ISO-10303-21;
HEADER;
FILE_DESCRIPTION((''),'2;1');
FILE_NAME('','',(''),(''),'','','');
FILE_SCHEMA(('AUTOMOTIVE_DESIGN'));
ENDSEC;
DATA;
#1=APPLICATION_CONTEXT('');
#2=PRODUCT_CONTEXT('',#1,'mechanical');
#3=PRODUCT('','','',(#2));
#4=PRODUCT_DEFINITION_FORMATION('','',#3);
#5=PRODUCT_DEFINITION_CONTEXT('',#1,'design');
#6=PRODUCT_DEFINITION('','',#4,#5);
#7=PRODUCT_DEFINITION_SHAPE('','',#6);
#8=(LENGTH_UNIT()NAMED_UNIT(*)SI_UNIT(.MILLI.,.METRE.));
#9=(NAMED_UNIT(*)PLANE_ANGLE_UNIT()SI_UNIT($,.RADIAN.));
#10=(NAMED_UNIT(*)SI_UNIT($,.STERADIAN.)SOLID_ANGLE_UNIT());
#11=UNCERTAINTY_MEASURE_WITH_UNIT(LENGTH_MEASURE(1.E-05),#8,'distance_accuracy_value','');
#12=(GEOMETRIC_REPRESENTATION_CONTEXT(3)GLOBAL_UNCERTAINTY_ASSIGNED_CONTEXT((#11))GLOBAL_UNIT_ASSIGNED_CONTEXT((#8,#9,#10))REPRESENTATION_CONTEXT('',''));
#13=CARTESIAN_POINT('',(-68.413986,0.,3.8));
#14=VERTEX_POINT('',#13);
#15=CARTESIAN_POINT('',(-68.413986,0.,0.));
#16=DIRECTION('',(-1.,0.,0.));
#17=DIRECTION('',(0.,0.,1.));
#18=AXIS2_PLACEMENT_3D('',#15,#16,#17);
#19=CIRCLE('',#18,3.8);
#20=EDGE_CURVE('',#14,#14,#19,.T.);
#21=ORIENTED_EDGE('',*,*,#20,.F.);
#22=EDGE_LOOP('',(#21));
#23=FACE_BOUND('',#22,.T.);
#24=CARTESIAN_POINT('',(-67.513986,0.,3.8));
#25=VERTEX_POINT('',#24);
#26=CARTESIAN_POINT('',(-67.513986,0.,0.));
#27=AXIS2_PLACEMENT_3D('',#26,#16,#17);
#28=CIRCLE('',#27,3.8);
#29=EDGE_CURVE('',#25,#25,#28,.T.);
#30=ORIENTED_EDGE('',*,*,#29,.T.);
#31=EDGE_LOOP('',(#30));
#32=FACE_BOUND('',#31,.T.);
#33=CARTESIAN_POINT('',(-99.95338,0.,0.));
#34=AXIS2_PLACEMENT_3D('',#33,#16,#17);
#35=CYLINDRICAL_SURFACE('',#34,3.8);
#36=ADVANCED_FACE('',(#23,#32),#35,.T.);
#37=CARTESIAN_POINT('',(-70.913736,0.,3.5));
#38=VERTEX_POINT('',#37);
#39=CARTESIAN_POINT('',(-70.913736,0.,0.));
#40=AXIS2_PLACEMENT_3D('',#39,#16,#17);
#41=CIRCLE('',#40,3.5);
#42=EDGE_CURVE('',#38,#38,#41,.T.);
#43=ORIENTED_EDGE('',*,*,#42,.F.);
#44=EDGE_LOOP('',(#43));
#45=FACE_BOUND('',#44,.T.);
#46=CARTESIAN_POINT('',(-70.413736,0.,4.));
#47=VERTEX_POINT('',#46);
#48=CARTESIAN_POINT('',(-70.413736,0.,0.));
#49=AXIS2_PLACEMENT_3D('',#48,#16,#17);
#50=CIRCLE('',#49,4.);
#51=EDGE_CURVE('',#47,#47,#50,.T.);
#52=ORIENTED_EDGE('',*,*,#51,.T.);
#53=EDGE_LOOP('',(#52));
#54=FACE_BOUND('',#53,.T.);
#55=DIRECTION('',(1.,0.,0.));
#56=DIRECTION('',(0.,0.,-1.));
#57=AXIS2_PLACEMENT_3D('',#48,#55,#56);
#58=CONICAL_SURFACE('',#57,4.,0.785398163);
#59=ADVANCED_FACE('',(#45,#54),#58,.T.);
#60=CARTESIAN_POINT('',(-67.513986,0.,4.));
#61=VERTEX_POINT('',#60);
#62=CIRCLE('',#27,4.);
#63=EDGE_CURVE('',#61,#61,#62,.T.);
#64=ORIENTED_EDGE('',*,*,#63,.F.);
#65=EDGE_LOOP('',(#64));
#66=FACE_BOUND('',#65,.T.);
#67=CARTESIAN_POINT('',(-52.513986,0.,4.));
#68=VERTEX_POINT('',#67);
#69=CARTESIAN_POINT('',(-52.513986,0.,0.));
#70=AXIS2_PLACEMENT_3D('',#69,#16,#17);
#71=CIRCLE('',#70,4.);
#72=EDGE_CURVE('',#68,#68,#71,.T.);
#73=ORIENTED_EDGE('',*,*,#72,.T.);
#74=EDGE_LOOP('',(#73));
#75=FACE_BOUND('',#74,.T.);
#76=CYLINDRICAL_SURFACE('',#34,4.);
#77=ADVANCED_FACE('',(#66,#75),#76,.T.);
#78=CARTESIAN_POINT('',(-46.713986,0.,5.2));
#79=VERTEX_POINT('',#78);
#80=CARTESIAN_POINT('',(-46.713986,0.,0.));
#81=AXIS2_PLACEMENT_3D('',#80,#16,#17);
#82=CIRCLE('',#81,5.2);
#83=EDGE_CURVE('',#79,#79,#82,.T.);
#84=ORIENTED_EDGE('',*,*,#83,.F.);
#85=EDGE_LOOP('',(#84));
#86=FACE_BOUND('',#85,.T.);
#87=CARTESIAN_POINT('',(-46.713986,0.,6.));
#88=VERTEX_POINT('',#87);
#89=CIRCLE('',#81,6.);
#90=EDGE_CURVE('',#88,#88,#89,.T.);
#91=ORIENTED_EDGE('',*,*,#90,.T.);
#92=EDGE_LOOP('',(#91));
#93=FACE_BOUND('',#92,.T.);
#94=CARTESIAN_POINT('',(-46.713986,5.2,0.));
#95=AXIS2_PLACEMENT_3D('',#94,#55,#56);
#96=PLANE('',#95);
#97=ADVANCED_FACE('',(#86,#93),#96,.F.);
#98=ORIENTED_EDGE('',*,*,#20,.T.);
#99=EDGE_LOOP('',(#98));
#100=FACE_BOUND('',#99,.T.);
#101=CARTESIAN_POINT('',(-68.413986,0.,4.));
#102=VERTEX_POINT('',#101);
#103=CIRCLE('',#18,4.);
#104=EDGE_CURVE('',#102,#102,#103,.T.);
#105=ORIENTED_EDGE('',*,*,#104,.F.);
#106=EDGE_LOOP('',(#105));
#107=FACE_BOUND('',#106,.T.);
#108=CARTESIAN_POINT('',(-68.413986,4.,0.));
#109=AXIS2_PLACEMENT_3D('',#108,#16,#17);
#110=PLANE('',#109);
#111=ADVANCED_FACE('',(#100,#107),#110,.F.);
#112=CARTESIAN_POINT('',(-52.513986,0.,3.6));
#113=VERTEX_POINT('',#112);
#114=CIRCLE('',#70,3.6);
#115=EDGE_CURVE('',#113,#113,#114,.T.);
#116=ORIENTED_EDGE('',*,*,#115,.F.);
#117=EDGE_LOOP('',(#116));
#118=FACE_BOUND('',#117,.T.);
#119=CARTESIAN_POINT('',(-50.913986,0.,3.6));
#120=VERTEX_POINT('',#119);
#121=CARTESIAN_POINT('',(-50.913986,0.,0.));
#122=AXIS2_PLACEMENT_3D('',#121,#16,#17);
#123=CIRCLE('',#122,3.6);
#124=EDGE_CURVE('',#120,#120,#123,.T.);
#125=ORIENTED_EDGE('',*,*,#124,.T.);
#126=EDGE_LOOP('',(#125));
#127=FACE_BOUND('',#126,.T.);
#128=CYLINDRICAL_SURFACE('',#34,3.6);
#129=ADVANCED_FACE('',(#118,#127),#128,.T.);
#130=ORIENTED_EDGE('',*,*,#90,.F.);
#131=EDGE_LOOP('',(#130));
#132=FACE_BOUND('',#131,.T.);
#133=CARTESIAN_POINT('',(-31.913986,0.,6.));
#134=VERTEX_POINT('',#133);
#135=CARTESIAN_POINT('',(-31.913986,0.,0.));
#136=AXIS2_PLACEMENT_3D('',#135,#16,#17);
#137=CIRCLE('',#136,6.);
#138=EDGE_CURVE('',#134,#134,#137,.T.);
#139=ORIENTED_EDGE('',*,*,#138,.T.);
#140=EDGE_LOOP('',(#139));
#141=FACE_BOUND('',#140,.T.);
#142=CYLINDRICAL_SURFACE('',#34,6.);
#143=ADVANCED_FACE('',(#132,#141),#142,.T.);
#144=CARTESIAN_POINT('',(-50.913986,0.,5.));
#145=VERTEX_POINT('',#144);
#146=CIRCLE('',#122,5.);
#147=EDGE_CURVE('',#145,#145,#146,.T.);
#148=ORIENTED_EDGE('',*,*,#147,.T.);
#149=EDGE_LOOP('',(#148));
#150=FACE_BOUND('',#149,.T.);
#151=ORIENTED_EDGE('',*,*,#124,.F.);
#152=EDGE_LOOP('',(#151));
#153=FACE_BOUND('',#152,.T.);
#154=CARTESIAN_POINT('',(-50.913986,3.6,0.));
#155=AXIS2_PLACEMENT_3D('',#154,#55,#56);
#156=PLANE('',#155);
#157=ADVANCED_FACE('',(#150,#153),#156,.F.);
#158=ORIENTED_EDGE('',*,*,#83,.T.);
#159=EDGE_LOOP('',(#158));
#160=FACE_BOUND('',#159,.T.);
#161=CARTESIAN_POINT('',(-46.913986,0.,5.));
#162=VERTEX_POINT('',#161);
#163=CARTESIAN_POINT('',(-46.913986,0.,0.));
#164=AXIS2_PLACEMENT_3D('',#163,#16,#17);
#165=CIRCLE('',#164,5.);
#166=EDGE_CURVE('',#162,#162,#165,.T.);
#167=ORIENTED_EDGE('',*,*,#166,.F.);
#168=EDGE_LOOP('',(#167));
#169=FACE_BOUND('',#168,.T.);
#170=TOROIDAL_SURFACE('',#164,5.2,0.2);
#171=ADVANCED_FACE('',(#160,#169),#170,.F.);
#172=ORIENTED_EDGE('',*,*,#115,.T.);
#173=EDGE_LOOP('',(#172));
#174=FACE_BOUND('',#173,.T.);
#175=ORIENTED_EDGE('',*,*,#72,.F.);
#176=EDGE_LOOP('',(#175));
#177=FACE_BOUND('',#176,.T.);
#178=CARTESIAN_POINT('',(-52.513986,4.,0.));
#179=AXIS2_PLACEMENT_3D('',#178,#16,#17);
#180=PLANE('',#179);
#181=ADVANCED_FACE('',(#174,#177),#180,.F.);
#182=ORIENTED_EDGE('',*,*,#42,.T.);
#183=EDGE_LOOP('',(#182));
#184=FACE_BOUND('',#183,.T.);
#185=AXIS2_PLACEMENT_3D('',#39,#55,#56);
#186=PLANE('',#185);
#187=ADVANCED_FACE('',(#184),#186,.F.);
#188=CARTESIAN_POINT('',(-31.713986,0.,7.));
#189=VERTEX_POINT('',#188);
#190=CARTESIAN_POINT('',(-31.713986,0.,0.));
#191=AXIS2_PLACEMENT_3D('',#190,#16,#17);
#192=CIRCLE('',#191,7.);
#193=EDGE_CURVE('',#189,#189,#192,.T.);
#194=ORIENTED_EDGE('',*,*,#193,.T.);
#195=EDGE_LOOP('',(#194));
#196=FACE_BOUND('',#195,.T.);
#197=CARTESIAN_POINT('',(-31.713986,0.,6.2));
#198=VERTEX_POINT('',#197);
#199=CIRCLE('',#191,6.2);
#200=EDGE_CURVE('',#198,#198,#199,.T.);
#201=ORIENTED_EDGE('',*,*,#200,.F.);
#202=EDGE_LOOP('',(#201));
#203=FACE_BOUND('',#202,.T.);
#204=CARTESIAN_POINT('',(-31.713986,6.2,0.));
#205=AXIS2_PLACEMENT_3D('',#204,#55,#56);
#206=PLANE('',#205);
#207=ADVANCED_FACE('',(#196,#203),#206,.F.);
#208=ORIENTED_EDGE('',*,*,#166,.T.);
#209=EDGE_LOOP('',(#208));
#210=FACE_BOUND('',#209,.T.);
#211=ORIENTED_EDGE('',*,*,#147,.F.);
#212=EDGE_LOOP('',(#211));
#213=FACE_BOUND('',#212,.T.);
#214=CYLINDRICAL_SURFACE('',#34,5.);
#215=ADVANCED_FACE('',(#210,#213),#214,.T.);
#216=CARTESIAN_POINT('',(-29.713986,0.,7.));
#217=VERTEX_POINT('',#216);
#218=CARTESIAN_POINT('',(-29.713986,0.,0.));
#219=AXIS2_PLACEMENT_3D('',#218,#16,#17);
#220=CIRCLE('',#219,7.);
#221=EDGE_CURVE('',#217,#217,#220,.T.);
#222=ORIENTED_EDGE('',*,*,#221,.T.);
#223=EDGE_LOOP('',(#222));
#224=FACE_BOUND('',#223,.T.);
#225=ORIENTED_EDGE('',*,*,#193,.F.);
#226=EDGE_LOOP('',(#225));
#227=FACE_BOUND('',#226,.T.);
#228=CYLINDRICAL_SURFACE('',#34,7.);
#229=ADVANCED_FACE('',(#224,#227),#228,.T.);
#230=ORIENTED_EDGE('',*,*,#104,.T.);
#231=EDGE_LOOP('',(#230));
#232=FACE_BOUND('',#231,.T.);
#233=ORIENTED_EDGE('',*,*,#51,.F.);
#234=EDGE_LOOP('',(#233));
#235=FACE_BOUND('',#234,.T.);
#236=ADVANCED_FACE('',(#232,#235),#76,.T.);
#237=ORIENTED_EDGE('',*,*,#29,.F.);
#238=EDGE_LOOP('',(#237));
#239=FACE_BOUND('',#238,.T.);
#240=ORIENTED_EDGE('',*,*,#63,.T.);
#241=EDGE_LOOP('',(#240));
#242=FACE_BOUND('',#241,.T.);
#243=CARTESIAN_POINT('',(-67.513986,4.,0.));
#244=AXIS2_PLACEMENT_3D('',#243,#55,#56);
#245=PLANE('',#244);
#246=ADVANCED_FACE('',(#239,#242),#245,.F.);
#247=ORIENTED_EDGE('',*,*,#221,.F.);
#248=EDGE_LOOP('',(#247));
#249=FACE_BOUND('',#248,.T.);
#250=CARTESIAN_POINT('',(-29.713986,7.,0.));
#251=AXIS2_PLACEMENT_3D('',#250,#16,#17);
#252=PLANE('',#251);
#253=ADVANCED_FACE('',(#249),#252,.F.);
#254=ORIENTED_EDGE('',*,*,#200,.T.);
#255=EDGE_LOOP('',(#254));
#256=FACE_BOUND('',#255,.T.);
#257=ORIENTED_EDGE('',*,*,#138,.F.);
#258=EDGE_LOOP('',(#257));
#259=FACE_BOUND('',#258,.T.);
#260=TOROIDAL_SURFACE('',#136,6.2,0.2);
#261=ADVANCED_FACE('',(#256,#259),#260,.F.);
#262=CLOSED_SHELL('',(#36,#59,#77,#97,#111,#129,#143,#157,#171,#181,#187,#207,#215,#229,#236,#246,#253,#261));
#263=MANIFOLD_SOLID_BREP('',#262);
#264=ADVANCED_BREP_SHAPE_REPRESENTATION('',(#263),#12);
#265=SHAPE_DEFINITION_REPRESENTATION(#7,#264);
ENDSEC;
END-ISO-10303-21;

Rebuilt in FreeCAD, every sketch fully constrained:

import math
import FreeCAD as App
import Part
import Sketcher
from FreeCAD import Vector
Q = App.Units.Quantity

doc = App.newDocument("Part")
params = doc.addObject("Spreadsheet::Sheet", "Params")
for row, (alias, value) in enumerate([
    ("sketch1_radius", "0.2 mm"),
    ("sketch1_width", "2 mm"),
    ("sketch1_width2", "4 mm"),
    ("sketch1_width3", "15 mm"),
    ("sketch1_height", "7 mm"),
    ("revolution_angle", "360 deg"),
], start=1):
    params.set(f"A{row}", alias)
    params.set(f"B{row}", "=" + value)
    params.setAlias(f"B{row}", alias)

body = doc.addObject("PartDesign::Body", "Body")

sketch1 = body.newObject("Sketcher::SketchObject", "Sketch")
sketch1.AttachmentSupport = (doc.getObject("XY_Plane"), [""])
sketch1.MapMode = "FlatFace"
sketch1.addGeometry(Part.LineSegment(Vector(-70.91, 3.5, 0), Vector(-70.91, 0, 0)), False)
sketch1.addGeometry(Part.LineSegment(Vector(-70.91, 0, 0), Vector(-29.71, 0, 0)), False)
sketch1.addGeometry(Part.LineSegment(Vector(-29.71, 0, 0), Vector(-29.71, 7, 0)), False)
sketch1.addGeometry(Part.LineSegment(Vector(-29.71, 7, 0), Vector(-31.71, 7, 0)), False)
sketch1.addGeometry(Part.LineSegment(Vector(-31.71, 7, 0), Vector(-31.71, 6.2, 0)), False)
sketch1.addGeometry(Part.ArcOfCircle(Part.Circle(Vector(-31.91, 6.2, 0), Vector(0, 0, 1), 0.2), math.radians(-90), math.radians(0)), False)
sketch1.addGeometry(Part.LineSegment(Vector(-31.91, 6, 0), Vector(-46.71, 6, 0)), False)
sketch1.addGeometry(Part.LineSegment(Vector(-46.71, 6, 0), Vector(-46.71, 5.2, 0)), False)
sketch1.addGeometry(Part.ArcOfCircle(Part.Circle(Vector(-46.91, 5.2, 0), Vector(0, 0, 1), 0.2), math.radians(-90), math.radians(0)), False)
sketch1.addGeometry(Part.LineSegment(Vector(-46.91, 5, 0), Vector(-50.91, 5, 0)), False)
sketch1.addGeometry(Part.LineSegment(Vector(-50.91, 5, 0), Vector(-50.91, 3.6, 0)), False)
sketch1.addGeometry(Part.LineSegment(Vector(-50.91, 3.6, 0), Vector(-52.51, 3.6, 0)), False)
sketch1.addGeometry(Part.LineSegment(Vector(-52.51, 3.6, 0), Vector(-52.51, 4, 0)), False)
sketch1.addGeometry(Part.LineSegment(Vector(-52.51, 4, 0), Vector(-67.51, 4, 0)), False)
sketch1.addGeometry(Part.LineSegment(Vector(-67.51, 4, 0), Vector(-67.51, 3.8, 0)), False)
sketch1.addGeometry(Part.LineSegment(Vector(-67.51, 3.8, 0), Vector(-68.41, 3.8, 0)), False)
sketch1.addGeometry(Part.LineSegment(Vector(-68.41, 3.8, 0), Vector(-68.41, 4, 0)), False)
sketch1.addGeometry(Part.LineSegment(Vector(-68.41, 4, 0), Vector(-70.41, 4, 0)), False)
sketch1.addGeometry(Part.LineSegment(Vector(-70.41, 4, 0), Vector(-70.91, 3.5, 0)), False)
sketch1.addConstraint(Sketcher.Constraint("Coincident", 0, 2, 1, 1))
sketch1.addConstraint(Sketcher.Constraint("Coincident", 1, 2, 2, 1))
sketch1.addConstraint(Sketcher.Constraint("Coincident", 2, 2, 3, 1))
sketch1.addConstraint(Sketcher.Constraint("Coincident", 3, 2, 4, 1))
sketch1.addConstraint(Sketcher.Constraint("Tangent", 4, 2, 5, 2))
sketch1.addConstraint(Sketcher.Constraint("Tangent", 5, 1, 6, 1))
sketch1.addConstraint(Sketcher.Constraint("Coincident", 6, 2, 7, 1))
sketch1.addConstraint(Sketcher.Constraint("Tangent", 7, 2, 8, 2))
sketch1.addConstraint(Sketcher.Constraint("Tangent", 8, 1, 9, 1))
sketch1.addConstraint(Sketcher.Constraint("Coincident", 9, 2, 10, 1))
sketch1.addConstraint(Sketcher.Constraint("Coincident", 10, 2, 11, 1))
sketch1.addConstraint(Sketcher.Constraint("Coincident", 11, 2, 12, 1))
sketch1.addConstraint(Sketcher.Constraint("Coincident", 12, 2, 13, 1))
sketch1.addConstraint(Sketcher.Constraint("Coincident", 13, 2, 14, 1))
sketch1.addConstraint(Sketcher.Constraint("Coincident", 14, 2, 15, 1))
sketch1.addConstraint(Sketcher.Constraint("Coincident", 15, 2, 16, 1))
sketch1.addConstraint(Sketcher.Constraint("Coincident", 16, 2, 17, 1))
sketch1.addConstraint(Sketcher.Constraint("Coincident", 17, 2, 18, 1))
sketch1.addConstraint(Sketcher.Constraint("Coincident", 18, 2, 0, 1))
sketch1.addConstraint(Sketcher.Constraint("Vertical", 0))
sketch1.addConstraint(Sketcher.Constraint("Horizontal", 1))
sketch1.addConstraint(Sketcher.Constraint("Vertical", 2))
sketch1.addConstraint(Sketcher.Constraint("Horizontal", 3))
sketch1.addConstraint(Sketcher.Constraint("Vertical", 4))
sketch1.addConstraint(Sketcher.Constraint("Horizontal", 6))
sketch1.addConstraint(Sketcher.Constraint("Vertical", 7))
sketch1.addConstraint(Sketcher.Constraint("Horizontal", 9))
sketch1.addConstraint(Sketcher.Constraint("Vertical", 10))
sketch1.addConstraint(Sketcher.Constraint("Horizontal", 11))
sketch1.addConstraint(Sketcher.Constraint("Vertical", 12))
sketch1.addConstraint(Sketcher.Constraint("Horizontal", 13))
sketch1.addConstraint(Sketcher.Constraint("Vertical", 14))
sketch1.addConstraint(Sketcher.Constraint("Horizontal", 15))
sketch1.addConstraint(Sketcher.Constraint("Vertical", 16))
sketch1.addConstraint(Sketcher.Constraint("Horizontal", 17))
sketch1.addConstraint(Sketcher.Constraint("Equal", 5, 8))
sketch1.addConstraint(Sketcher.Constraint("PointOnObject", 0, 2, -1))
sketch1.addConstraint(Sketcher.Constraint("Horizontal", 13, 2, 16, 2))
sketch1.addConstraint(Sketcher.Constraint("Equal", 4, 7))
sketch1.addConstraint(Sketcher.Constraint("Radius", 5, Q("0.2 mm")))
sketch1.addConstraint(Sketcher.Constraint("DistanceX", 3, 2, 3, 1, Q("2 mm")))
sketch1.addConstraint(Sketcher.Constraint("DistanceX", 9, 2, 9, 1, Q("4 mm")))
sketch1.addConstraint(Sketcher.Constraint("DistanceX", 13, 2, 13, 1, Q("15 mm")))
sketch1.addConstraint(Sketcher.Constraint("DistanceY", 2, 1, 2, 2, Q("7 mm")))
sketch1.addConstraint(Sketcher.Constraint("Angle", 18, Q("-135 deg")))
sketch1.addConstraint(Sketcher.Constraint("DistanceX", 6, 2, 6, 1, Q("14.8 mm")))
sketch1.addConstraint(Sketcher.Constraint("DistanceX", 11, 2, 11, 1, Q("1.6 mm")))
sketch1.addConstraint(Sketcher.Constraint("DistanceX", 15, 2, 15, 1, Q("0.9 mm")))
sketch1.addConstraint(Sketcher.Constraint("DistanceY", 0, 2, 0, 1, Q("3.5 mm")))
sketch1.addConstraint(Sketcher.Constraint("DistanceY", 4, 2, 4, 1, Q("0.8 mm")))
sketch1.addConstraint(Sketcher.Constraint("DistanceY", 10, 2, 10, 1, Q("1.4 mm")))
sketch1.addConstraint(Sketcher.Constraint("DistanceY", 12, 1, 12, 2, Q("0.4 mm")))
sketch1.addConstraint(Sketcher.Constraint("DistanceY", 14, 2, 14, 1, Q("0.2 mm")))
sketch1.addConstraint(Sketcher.Constraint("DistanceX", 1, 1, 1, 2, Q("41.19975 mm")))
sketch1.addConstraint(Sketcher.Constraint("DistanceX", 5, 3, -1, 1, Q("31.913986 mm")))
sketch1.setExpression("Constraints[39]", "Params.sketch1_radius")
sketch1.setExpression("Constraints[40]", "Params.sketch1_width")
sketch1.setExpression("Constraints[41]", "Params.sketch1_width2")
sketch1.setExpression("Constraints[42]", "Params.sketch1_width3")
sketch1.setExpression("Constraints[43]", "Params.sketch1_height")
revolution = body.newObject("PartDesign::Revolution", "Revolution")
revolution.Profile = sketch1
revolution.ReferenceAxis = (sketch1, ["H_Axis"])
revolution.setExpression("Angle", "Params.revolution_angle")

doc.recompute()
